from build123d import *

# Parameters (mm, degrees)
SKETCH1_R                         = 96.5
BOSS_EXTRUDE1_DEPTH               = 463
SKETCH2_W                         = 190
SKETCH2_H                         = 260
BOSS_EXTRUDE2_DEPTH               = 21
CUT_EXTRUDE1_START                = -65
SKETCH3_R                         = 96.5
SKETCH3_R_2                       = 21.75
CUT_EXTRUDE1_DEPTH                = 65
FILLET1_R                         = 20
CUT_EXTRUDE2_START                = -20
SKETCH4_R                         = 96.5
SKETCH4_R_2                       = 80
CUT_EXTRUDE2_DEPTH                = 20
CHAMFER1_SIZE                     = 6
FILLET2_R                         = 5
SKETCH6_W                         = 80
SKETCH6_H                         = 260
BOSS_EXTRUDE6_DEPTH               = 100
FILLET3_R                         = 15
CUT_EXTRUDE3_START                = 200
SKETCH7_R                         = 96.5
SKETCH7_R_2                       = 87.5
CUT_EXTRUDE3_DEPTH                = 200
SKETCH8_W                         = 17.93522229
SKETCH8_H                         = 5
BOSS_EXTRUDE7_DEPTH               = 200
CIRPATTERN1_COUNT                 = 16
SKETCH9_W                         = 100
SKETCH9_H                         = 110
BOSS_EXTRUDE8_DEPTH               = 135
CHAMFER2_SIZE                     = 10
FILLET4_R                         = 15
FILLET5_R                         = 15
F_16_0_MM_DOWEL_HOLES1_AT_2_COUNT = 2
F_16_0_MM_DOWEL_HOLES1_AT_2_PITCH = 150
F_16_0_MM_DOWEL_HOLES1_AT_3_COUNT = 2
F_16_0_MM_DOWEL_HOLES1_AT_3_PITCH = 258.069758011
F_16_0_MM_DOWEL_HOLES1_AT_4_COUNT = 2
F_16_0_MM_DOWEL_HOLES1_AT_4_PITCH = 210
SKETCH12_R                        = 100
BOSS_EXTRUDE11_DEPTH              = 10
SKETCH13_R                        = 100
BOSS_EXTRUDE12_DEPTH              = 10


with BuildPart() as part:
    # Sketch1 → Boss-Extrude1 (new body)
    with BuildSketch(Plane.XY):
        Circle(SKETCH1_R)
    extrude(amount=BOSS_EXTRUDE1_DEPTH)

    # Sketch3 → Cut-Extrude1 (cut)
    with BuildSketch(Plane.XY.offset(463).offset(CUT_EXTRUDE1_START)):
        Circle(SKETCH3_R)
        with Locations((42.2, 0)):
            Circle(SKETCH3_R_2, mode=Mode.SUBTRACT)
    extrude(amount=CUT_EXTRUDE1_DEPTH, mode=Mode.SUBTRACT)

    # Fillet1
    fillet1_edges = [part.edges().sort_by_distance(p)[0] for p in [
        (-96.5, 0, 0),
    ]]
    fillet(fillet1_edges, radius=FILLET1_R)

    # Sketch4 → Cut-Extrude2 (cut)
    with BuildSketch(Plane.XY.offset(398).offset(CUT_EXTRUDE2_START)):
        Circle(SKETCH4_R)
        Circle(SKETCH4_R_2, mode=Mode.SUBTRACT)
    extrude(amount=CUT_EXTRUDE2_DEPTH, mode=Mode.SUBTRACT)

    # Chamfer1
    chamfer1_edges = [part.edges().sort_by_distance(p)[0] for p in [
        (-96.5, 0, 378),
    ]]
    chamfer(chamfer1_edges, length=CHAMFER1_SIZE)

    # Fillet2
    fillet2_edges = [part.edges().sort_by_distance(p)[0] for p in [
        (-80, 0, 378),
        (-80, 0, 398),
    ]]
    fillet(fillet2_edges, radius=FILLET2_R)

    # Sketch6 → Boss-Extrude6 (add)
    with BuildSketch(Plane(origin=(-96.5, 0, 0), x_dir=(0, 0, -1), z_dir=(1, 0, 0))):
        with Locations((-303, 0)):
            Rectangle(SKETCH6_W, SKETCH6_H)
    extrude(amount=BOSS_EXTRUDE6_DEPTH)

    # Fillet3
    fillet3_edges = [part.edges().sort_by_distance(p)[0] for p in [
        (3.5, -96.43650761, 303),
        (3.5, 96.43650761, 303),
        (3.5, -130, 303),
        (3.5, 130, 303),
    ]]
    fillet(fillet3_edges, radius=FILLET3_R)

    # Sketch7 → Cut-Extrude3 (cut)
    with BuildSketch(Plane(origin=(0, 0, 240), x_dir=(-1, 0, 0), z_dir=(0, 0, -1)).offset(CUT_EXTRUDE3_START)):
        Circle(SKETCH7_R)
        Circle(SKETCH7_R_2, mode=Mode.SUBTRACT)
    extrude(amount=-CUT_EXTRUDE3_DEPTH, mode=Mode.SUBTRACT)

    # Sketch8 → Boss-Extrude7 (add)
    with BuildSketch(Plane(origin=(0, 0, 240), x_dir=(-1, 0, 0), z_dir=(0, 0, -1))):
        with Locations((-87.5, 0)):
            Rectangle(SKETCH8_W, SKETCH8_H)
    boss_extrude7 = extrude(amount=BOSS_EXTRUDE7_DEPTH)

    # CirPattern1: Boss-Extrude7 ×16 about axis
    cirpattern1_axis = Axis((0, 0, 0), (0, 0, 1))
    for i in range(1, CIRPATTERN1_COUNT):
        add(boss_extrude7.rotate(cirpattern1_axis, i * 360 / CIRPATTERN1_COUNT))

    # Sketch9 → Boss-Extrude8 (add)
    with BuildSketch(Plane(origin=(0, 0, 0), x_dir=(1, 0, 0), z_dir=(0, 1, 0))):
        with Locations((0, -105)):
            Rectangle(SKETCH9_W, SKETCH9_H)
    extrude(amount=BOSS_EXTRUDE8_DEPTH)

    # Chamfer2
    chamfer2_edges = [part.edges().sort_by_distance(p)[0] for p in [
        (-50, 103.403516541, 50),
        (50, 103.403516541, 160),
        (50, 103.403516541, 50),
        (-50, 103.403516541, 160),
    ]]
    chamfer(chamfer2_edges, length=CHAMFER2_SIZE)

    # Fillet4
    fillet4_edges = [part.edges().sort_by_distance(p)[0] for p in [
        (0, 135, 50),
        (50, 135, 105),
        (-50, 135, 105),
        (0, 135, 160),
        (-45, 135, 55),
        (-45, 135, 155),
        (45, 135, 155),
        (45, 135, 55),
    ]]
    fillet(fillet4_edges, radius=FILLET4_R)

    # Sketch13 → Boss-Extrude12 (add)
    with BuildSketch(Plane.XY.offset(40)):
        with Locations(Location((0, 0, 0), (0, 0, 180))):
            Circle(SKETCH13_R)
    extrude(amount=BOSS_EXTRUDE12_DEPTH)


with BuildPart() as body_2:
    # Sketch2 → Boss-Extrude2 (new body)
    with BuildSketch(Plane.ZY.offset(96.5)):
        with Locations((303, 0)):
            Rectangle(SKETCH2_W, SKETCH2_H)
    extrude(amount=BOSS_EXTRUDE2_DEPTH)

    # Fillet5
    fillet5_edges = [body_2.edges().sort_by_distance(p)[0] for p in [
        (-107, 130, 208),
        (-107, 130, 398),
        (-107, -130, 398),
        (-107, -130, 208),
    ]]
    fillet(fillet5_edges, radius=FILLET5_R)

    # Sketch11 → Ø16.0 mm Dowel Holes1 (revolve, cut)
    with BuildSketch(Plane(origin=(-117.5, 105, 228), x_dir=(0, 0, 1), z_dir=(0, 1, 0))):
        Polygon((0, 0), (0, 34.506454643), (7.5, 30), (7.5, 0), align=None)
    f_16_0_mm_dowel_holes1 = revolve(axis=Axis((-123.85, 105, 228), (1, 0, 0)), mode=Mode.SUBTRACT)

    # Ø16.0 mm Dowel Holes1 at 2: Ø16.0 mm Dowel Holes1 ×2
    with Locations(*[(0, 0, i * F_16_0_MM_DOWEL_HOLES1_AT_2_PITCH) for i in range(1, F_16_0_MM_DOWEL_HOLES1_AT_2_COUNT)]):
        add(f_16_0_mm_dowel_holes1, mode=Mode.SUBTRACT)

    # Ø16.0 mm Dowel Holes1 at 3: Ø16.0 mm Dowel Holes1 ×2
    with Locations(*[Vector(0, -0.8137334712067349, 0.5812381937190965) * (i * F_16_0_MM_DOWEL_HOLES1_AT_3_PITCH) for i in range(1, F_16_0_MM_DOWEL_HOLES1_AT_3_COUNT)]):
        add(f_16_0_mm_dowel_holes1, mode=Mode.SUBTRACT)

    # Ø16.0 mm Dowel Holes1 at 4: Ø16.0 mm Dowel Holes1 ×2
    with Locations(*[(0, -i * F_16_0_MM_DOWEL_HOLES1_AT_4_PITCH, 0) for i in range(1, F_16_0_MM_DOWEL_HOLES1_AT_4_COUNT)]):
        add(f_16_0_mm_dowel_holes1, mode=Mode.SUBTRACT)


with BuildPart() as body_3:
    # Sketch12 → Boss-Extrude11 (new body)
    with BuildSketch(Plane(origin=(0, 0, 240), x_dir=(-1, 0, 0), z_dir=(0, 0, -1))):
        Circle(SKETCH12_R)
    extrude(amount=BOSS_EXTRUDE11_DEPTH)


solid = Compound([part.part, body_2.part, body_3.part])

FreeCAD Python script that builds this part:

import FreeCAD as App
import Part
import Sketcher
Q = App.Units.Quantity


def edges_at(feature, points):
    """Names of the edges that pass closest to the given points."""
    edges = feature.Shape.Edges
    near = lambda p: min(range(len(edges)), key=lambda i: edges[i].distToShape(Part.Vertex(*p))[0])
    return sorted({f"Edge{near(p) + 1}" for p in points})


def add_polygon(sketch, points):
    """Adds a closed chain of lines whose ends are joined by coincident constraints."""
    first, n = sketch.GeometryCount, len(points)
    for a, b in zip(points, points[1:] + points[:1]):
        sketch.addGeometry(Part.LineSegment(App.Vector(*a, 0), App.Vector(*b, 0)), False)
    for i in range(n):
        sketch.addConstraint(Sketcher.Constraint("Coincident", first + i, 2, first + (i + 1) % n, 1))

doc = App.newDocument("Part")
body = doc.addObject("PartDesign::Body", "Body")

sketch1 = body.newObject("Sketcher::SketchObject", "Sketch")
sketch1.AttachmentSupport = (doc.getObject("XY_Plane"), [""])
sketch1.MapMode = "FlatFace"
sketch1.addGeometry(Part.Circle(App.Vector(0, 0, 0), App.Vector(0, 0, 1), 96), False)
sketch1.addConstraint(Sketcher.Constraint("Coincident", 0, 3, -1, 1))
sketch1.addConstraint(Sketcher.Constraint("Diameter", 0, 193.0))
pad1 = body.newObject("PartDesign::Pad", "Pad")
pad1.Profile = sketch1
pad1.Length = 463

sketch2 = body.newObject("Sketcher::SketchObject", "Sketch001")
sketch2.AttachmentSupport = (doc.getObject("XY_Plane"), [""])
sketch2.MapMode = "FlatFace"
sketch2.AttachmentOffset = App.Placement(App.Vector(0, 0, 398), App.Rotation())
sketch2.addGeometry(Part.Circle(App.Vector(0, 0, 0), App.Vector(0, 0, 1), 96), False)
sketch2.addGeometry(Part.Circle(App.Vector(42, 0, 0), App.Vector(0, 0, 1), 22), False)
sketch2.addConstraint(Sketcher.Constraint("Coincident", 0, 3, -1, 1))
sketch2.addConstraint(Sketcher.Constraint("PointOnObject", 1, 3, -1))
sketch2.addConstraint(Sketcher.Constraint("Diameter", 0, 193.0))
sketch2.addConstraint(Sketcher.Constraint("Diameter", 1, 43.5))
sketch2.addConstraint(Sketcher.Constraint("DistanceX", -1, 1, 1, 3, 42.2))
pocket1 = body.newObject("PartDesign::Pocket", "Pocket")
pocket1.Profile = sketch2
pocket1.Length = 65
pocket1.Reversed = True
doc.recompute()

fillet = body.newObject("PartDesign::Fillet", "Fillet")
fillet.Base = (pocket1, edges_at(pocket1, [(-96.5, 0, 0)]))
fillet.Radius = 20

sketch3 = body.newObject("Sketcher::SketchObject", "Sketch002")
sketch3.AttachmentSupport = (doc.getObject("XY_Plane"), [""])
sketch3.MapMode = "FlatFace"
sketch3.AttachmentOffset = App.Placement(App.Vector(0, 0, 378), App.Rotation())
sketch3.addGeometry(Part.Circle(App.Vector(0, 0, 0), App.Vector(0, 0, 1), 96), False)
sketch3.addGeometry(Part.Circle(App.Vector(0, 0, 0), App.Vector(0, 0, 1), 80), False)
sketch3.addConstraint(Sketcher.Constraint("Coincident", 0, 3, -1, 1))
sketch3.addConstraint(Sketcher.Constraint("Coincident", 1, 3, -1, 1))
sketch3.addConstraint(Sketcher.Constraint("Diameter", 0, 193.0))
sketch3.addConstraint(Sketcher.Constraint("Diameter", 1, 160.0))
pocket2 = body.newObject("PartDesign::Pocket", "Pocket001")
pocket2.Profile = sketch3
pocket2.Length = 20
pocket2.Reversed = True
doc.recompute()

chamfer = body.newObject("PartDesign::Chamfer", "Chamfer")
chamfer.Base = (pocket2, edges_at(pocket2, [(-96.5, 0, 378)]))
chamfer.Size = 6
doc.recompute()

fillet2 = body.newObject("PartDesign::Fillet", "Fillet001")
fillet2.Base = (chamfer, edges_at(chamfer, [(-80, 0, 378), (-80, 0, 398)]))
fillet2.Radius = 5

sketch4 = body.newObject("Sketcher::SketchObject", "Sketch003")
sketch4.AttachmentSupport = (doc.getObject("YZ_Plane"), [""])
sketch4.MapMode = "FlatFace"
sketch4.AttachmentOffset = App.Placement(App.Vector(0, 0, -96.5), App.Rotation())
add_polygon(sketch4, [(130, 343), (-130, 343), (-130, 263), (130, 263)])
sketch4.addConstraint(Sketcher.Constraint("Horizontal", 0))
sketch4.addConstraint(Sketcher.Constraint("Vertical", 1))
sketch4.addConstraint(Sketcher.Constraint("Horizontal", 2))
sketch4.addConstraint(Sketcher.Constraint("Vertical", 3))
sketch4.addConstraint(Sketcher.Constraint("DistanceX", 0, 2, 0, 1, 260.0))
sketch4.addConstraint(Sketcher.Constraint("DistanceY", 1, 2, 1, 1, 80.0))
sketch4.addConstraint(Sketcher.Constraint("DistanceX", 0, 2, -1, 1, 130.0))
sketch4.addConstraint(Sketcher.Constraint("DistanceY", -1, 1, 0, 2, 343.0))
pad2 = body.newObject("PartDesign::Pad", "Pad001")
pad2.Profile = sketch4
pad2.Length = 100
doc.recompute()

fillet3 = body.newObject("PartDesign::Fillet", "Fillet002")
fillet3.Base = (pad2, edges_at(pad2, [
    (3.5, -96.437, 303),
    (3.5, 96.437, 303),
    (3.5, -130, 303),
    (3.5, 130, 303),
]))
fillet3.Radius = 15

sketch5 = body.newObject("Sketcher::SketchObject", "Sketch004")
sketch5.AttachmentSupport = (doc.getObject("XY_Plane"), [""])
sketch5.MapMode = "FlatFace"
sketch5.AttachmentOffset = App.Placement(App.Vector(0, 0, 40), App.Rotation())
sketch5.addGeometry(Part.Circle(App.Vector(0, 0, 0), App.Vector(0, 0, 1), 96), False)
sketch5.addGeometry(Part.Circle(App.Vector(0, 0, 0), App.Vector(0, 0, 1), 88), False)
sketch5.addConstraint(Sketcher.Constraint("Coincident", 0, 3, -1, 1))
sketch5.addConstraint(Sketcher.Constraint("Coincident", 1, 3, -1, 1))
sketch5.addConstraint(Sketcher.Constraint("Diameter", 0, 193.0))
sketch5.addConstraint(Sketcher.Constraint("Diameter", 1, 175.0))
pocket3 = body.newObject("PartDesign::Pocket", "Pocket002")
pocket3.Profile = sketch5
pocket3.Length = 200
pocket3.Reversed = True

sketch6 = body.newObject("Sketcher::SketchObject", "Sketch005")
sketch6.AttachmentSupport = (doc.getObject("XY_Plane"), [""])
sketch6.MapMode = "FlatFace"
sketch6.AttachmentOffset = App.Placement(App.Vector(0, 0, 240), App.Rotation())
add_polygon(sketch6, [(96, 2), (96, -2), (79, -2), (79, 2)])
sketch6.addConstraint(Sketcher.Constraint("Vertical", 0))
sketch6.addConstraint(Sketcher.Constraint("Horizontal", 1))
sketch6.addConstraint(Sketcher.Constraint("Vertical", 2))
sketch6.addConstraint(Sketcher.Constraint("Horizontal", 3))
sketch6.addConstraint(Sketcher.Constraint("DistanceY", 0, 2, 0, 1, 5.0))
sketch6.addConstraint(Sketcher.Constraint("DistanceY", 0, 2, -1, 1, 2.5))
sketch6.addConstraint(Sketcher.Constraint("DistanceX", 1, 2, 1, 1, 17.935222))
sketch6.addConstraint(Sketcher.Constraint("DistanceX", -1, 1, 0, 2, 96.467611))
pad3 = body.newObject("PartDesign::Pad", "Pad002")
pad3.Profile = sketch6
pad3.Length = 200
pad3.Reversed = True
doc.recompute()

polarpattern = body.newObject("PartDesign::PolarPattern", "PolarPattern")
polarpattern.Originals = [pad3]
polarpattern.Axis = (doc.getObject("Z_Axis"), [""])
polarpattern.Angle = 360
polarpattern.Occurrences = 16
body.Tip = polarpattern

sketch7 = body.newObject("Sketcher::SketchObject", "Sketch006")
sketch7.AttachmentSupport = (doc.getObject("XZ_Plane"), [""])
sketch7.MapMode = "FlatFace"
add_polygon(sketch7, [(-50, 50), (-50, 160), (50, 160), (50, 50)])
sketch7.addConstraint(Sketcher.Constraint("Vertical", 0))
sketch7.addConstraint(Sketcher.Constraint("Horizontal", 1))
sketch7.addConstraint(Sketcher.Constraint("Vertical", 2))
sketch7.addConstraint(Sketcher.Constraint("Horizontal", 3))
sketch7.addConstraint(Sketcher.Constraint("DistanceX", 1, 1, 1, 2, 100.0))
sketch7.addConstraint(Sketcher.Constraint("DistanceY", 0, 1, 0, 2, 110.0))
sketch7.addConstraint(Sketcher.Constraint("DistanceX", 0, 2, -1, 1, 50.0))
sketch7.addConstraint(Sketcher.Constraint("DistanceY", -1, 1, 0, 2, 160.0))
pad4 = body.newObject("PartDesign::Pad", "Pad003")
pad4.Profile = sketch7
pad4.Length = 135
pad4.Reversed = True
doc.recompute()

chamfer2 = body.newObject("PartDesign::Chamfer", "Chamfer001")
chamfer2.Base = (pad4, edges_at(pad4, [
    (-50, 103.404, 50),
    (50, 103.404, 160),
    (50, 103.404, 50),
    (-50, 103.404, 160),
]))
chamfer2.Size = 10
doc.recompute()

fillet4 = body.newObject("PartDesign::Fillet", "Fillet003")
fillet4.Base = (chamfer2, edges_at(chamfer2, [
    (0, 135, 50),
    (50, 135, 105),
    (-50, 135, 105),
    (0, 135, 160),
    (-45, 135, 55),
    (-45, 135, 155),
    (45, 135, 155),
    (45, 135, 55),
]))
fillet4.Radius = 15

sketch8 = body.newObject("Sketcher::SketchObject", "Sketch007")
sketch8.AttachmentSupport = (doc.getObject("XY_Plane"), [""])
sketch8.MapMode = "FlatFace"
sketch8.AttachmentOffset = App.Placement(App.Vector(0, 0, 40), App.Rotation())
sketch8.addGeometry(Part.Circle(App.Vector(0, 0, 0), App.Vector(0, 0, 1), 100), False)
sketch8.addConstraint(Sketcher.Constraint("Coincident", 0, 3, -1, 1))
sketch8.addConstraint(Sketcher.Constraint("Diameter", 0, 200.0))
pad5 = body.newObject("PartDesign::Pad", "Pad004")
pad5.Profile = sketch8
pad5.Length = 10
body2 = doc.addObject("PartDesign::Body", "Body001")

sketch9 = body2.newObject("Sketcher::SketchObject", "Sketch008")
sketch9.AttachmentSupport = (doc.getObject("YZ_Plane001"), [""])
sketch9.MapMode = "FlatFace"
sketch9.AttachmentOffset = App.Placement(App.Vector(0, 0, -96.5), App.Rotation())
add_polygon(sketch9, [(130, 208), (-130, 208), (-130, 398), (130, 398)])
sketch9.addConstraint(Sketcher.Constraint("Horizontal", 0))
sketch9.addConstraint(Sketcher.Constraint("Vertical", 1))
sketch9.addConstraint(Sketcher.Constraint("Horizontal", 2))
sketch9.addConstraint(Sketcher.Constraint("Vertical", 3))
sketch9.addConstraint(Sketcher.Constraint("DistanceX", 0, 2, 0, 1, 260.0))
sketch9.addConstraint(Sketcher.Constraint("DistanceY", 1, 1, 1, 2, 190.0))
sketch9.addConstraint(Sketcher.Constraint("DistanceX", 0, 2, -1, 1, 130.0))
sketch9.addConstraint(Sketcher.Constraint("DistanceY", -1, 1, 0, 2, 208.0))
pad6 = body2.newObject("PartDesign::Pad", "Pad005")
pad6.Profile = sketch9
pad6.Length = 21
pad6.Reversed = True
doc.recompute()

fillet5 = body2.newObject("PartDesign::Fillet", "Fillet004")
fillet5.Base = (pad6, edges_at(pad6, [
    (-107, 130, 208),
    (-107, 130, 398),
    (-107, -130, 398),
    (-107, -130, 208),
]))
fillet5.Radius = 15

sketch10 = body2.newObject("Sketcher::SketchObject", "Sketch009")
sketch10.AttachmentSupport = (doc.getObject("XZ_Plane001"), [""])
sketch10.MapMode = "FlatFace"
sketch10.AttachmentOffset = App.Placement(App.Vector(0, 0, -105), App.Rotation())
add_polygon(sketch10, [(-83, 228), (-118, 228), (-118, 236), (-88, 236)])
sketch10.addGeometry(Part.LineSegment(App.Vector(-118, 228, 0), App.Vector(-83, 228, 0)), True)
sketch10.addConstraint(Sketcher.Constraint("Horizontal", 0))
sketch10.addConstraint(Sketcher.Constraint("Vertical", 1))
sketch10.addConstraint(Sketcher.Constraint("Horizontal", 2))
sketch10.addConstraint(Sketcher.Constraint("Horizontal", 4))
sketch10.addConstraint(Sketcher.Constraint("Coincident", 4, 1, 0, 2))
sketch10.addConstraint(Sketcher.Constraint("Equal", 0, 4))
sketch10.addConstraint(Sketcher.Constraint("DistanceX", 2, 1, 2, 2, 30.0))
sketch10.addConstraint(Sketcher.Constraint("Angle", 3, Q("-59 deg")))
sketch10.addConstraint(Sketcher.Constraint("DistanceY", 1, 1, 1, 2, 7.5))
sketch10.addConstraint(Sketcher.Constraint("DistanceY", -1, 1, 0, 2, 228.0))
sketch10.addConstraint(Sketcher.Constraint("DistanceX", 0, 2, -1, 1, 117.5))
groove = body2.newObject("PartDesign::Groove", "Groove")
groove.Profile = sketch10
groove.ReferenceAxis = (sketch10, ["Axis0"])
groove.Angle = 360
doc.recompute()

linearpattern = body2.newObject("PartDesign::LinearPattern", "LinearPattern")
linearpattern.Originals = [groove]
linearpattern.Direction = (doc.getObject("Z_Axis001"), [""])
linearpattern.Mode = "offset"
linearpattern.Offset = 150
linearpattern.Occurrences = 2
body2.Tip = linearpattern
doc.recompute()

datumline = body2.newObject("PartDesign::Line", "DatumLine")
datumline.Placement = App.Placement(App.Vector(0, 0, 0), App.Rotation(App.Vector(0, 0, 1), App.Vector(0, -0.813733471, 0.581238194)))
linearpattern2 = body2.newObject("PartDesign::LinearPattern", "LinearPattern001")
linearpattern2.Originals = [groove]
linearpattern2.Direction = (datumline, [""])
linearpattern2.Mode = "offset"
linearpattern2.Offset = 258.069758
linearpattern2.Occurrences = 2
body2.Tip = linearpattern2
doc.recompute()

linearpattern3 = body2.newObject("PartDesign::LinearPattern", "LinearPattern002")
linearpattern3.Originals = [groove]
linearpattern3.Direction = (doc.getObject("Y_Axis001"), [""])
linearpattern3.Mode = "offset"
linearpattern3.Offset = 210
linearpattern3.Occurrences = 2
linearpattern3.Reversed = True
body2.Tip = linearpattern3
body3 = doc.addObject("PartDesign::Body", "Body002")

sketch11 = body3.newObject("Sketcher::SketchObject", "Sketch010")
sketch11.AttachmentSupport = (doc.getObject("XY_Plane002"), [""])
sketch11.MapMode = "FlatFace"
sketch11.AttachmentOffset = App.Placement(App.Vector(0, 0, 240), App.Rotation())
sketch11.addGeometry(Part.Circle(App.Vector(0, 0, 0), App.Vector(0, 0, 1), 100), False)
sketch11.addConstraint(Sketcher.Constraint("Coincident", 0, 3, -1, 1))
sketch11.addConstraint(Sketcher.Constraint("Diameter", 0, 200.0))
pad7 = body3.newObject("PartDesign::Pad", "Pad006")
pad7.Profile = sketch11
pad7.Length = 10
pad7.Reversed = True

doc.recompute()
